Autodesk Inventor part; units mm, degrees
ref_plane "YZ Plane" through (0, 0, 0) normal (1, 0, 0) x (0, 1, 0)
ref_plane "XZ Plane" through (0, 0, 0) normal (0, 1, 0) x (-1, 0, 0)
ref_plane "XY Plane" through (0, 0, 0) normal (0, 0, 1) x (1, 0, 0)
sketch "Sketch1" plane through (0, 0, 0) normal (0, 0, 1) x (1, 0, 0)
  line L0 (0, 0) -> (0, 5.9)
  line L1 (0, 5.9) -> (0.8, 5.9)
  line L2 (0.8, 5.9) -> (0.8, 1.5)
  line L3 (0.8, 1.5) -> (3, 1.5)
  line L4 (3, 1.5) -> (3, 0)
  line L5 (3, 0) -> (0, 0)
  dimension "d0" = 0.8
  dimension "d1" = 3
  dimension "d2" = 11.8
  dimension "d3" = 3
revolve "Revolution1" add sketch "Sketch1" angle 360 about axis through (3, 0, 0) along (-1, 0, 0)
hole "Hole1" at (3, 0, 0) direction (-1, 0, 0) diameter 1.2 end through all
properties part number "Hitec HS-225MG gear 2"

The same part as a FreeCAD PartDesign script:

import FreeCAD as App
import Part
import Sketcher
from FreeCAD import Vector


def add_polygon(sketch, points):
    """Adds a closed chain of lines whose ends are joined by coincident constraints."""
    first, n = sketch.GeometryCount, len(points)
    for a, b in zip(points, points[1:] + points[:1]):
        sketch.addGeometry(Part.LineSegment(App.Vector(*a, 0), App.Vector(*b, 0)), False)
    for i in range(n):
        sketch.addConstraint(Sketcher.Constraint("Coincident", first + i, 2, first + (i + 1) % n, 1))

doc = App.newDocument("Part")
body = doc.addObject("PartDesign::Body", "Body")

# Sketch on XY plane
sketch1 = body.newObject("Sketcher::SketchObject", "Sketch")
sketch1.AttachmentSupport = (doc.getObject("XY_Plane"), [""])
sketch1.MapMode = "FlatFace"
add_polygon(sketch1, [(0, 5.9), (0, 0), (3, 0), (3, 1.5), (0.8, 1.5), (0.8, 5.9)])  # lines 0-5
sketch1.addConstraint([
    Sketcher.Constraint("Vertical", 0),
    Sketcher.Constraint("Horizontal", 1),
    Sketcher.Constraint("Vertical", 2),
    Sketcher.Constraint("Horizontal", 3),
    Sketcher.Constraint("Vertical", 4),
    Sketcher.Constraint("Horizontal", 5),
    Sketcher.Constraint("Coincident", 0, 2, -1, 1),
    Sketcher.Constraint("DistanceX", 1, 1, 1, 2, 3.0),
    Sketcher.Constraint("DistanceX", 5, 2, 5, 1, 0.8),
    Sketcher.Constraint("DistanceY", 0, 2, 0, 1, 5.9),
    Sketcher.Constraint("DistanceY", 2, 1, 2, 2, 1.5),
])
revolution = body.newObject("PartDesign::Revolution", "Revolution")
revolution.Profile = sketch1
revolution.ReferenceAxis = (sketch1, ["H_Axis"])
revolution.Angle = 360

# Sketch on YZ plane
sketch2 = body.newObject("Sketcher::SketchObject", "Sketch001")
sketch2.AttachmentSupport = (doc.getObject("YZ_Plane"), [""])
sketch2.MapMode = "FlatFace"
sketch2.AttachmentOffset = App.Placement(Vector(0, 0, 3), App.Rotation())
sketch2.addGeometry(Part.Circle(Vector(0, 0, 0), Vector(0, 0, 1), 0.6), False)
sketch2.addConstraint([
    Sketcher.Constraint("Coincident", 0, 3, -1, 1),
    Sketcher.Constraint("Diameter", 0, 1.2),
])
doc.recompute()
hole = body.newObject("PartDesign::Hole", "Hole")
hole.Profile = sketch2
hole.ThreadType = "None"
hole.Diameter = 1.2
hole.DepthType = "ThroughAll"

doc.recompute()
